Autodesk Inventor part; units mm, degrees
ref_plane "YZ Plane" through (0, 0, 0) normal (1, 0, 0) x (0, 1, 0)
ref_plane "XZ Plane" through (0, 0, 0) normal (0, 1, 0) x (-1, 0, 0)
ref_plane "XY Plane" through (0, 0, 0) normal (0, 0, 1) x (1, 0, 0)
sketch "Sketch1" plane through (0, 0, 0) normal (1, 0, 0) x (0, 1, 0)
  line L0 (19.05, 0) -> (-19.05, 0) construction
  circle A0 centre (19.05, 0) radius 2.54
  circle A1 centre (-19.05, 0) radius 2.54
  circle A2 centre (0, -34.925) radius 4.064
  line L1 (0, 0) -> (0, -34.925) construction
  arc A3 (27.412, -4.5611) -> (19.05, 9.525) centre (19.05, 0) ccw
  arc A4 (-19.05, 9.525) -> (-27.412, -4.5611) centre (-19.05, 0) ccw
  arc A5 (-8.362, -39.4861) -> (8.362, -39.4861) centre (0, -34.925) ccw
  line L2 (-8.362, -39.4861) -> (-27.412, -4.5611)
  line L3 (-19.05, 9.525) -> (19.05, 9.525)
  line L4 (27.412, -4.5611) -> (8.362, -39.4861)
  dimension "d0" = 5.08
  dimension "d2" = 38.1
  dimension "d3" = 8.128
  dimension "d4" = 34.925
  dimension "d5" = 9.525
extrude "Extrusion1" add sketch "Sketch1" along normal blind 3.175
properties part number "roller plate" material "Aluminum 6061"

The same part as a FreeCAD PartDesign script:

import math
import FreeCAD as App
import Part
import Sketcher

V = App.Vector
Q = App.Units.Quantity

doc = App.newDocument("Part")
params = doc.addObject("Spreadsheet::Sheet", "Params")
for row, (alias, value) in enumerate([
    ("sketch1_diameter", "0.2 in"),
    ("sketch1_diameter2", "0.32 in"),
    ("sketch1_width", "1.5 in"),
    ("sketch1_radius", "0.375 in"),
    ("pad1_length", "0.125 in"),
], start=1):
    params.set(f"A{row}", alias)
    params.set(f"B{row}", "=" + value)
    params.setAlias(f"B{row}", alias)

body = doc.addObject("PartDesign::Body", "Body")

sketch1 = body.newObject("Sketcher::SketchObject", "Sketch")
sketch1.AttachmentSupport = (doc.getObject("YZ_Plane"), [""])
sketch1.MapMode = "FlatFace"
sketch1.addGeometry([
    Part.LineSegment(V(8.4, -39.5, 0), V(27.4, -4.6, 0)),
    Part.ArcOfCircle(Part.Circle(V(19.1, 0, 0), V(0, 0, 1), 9.5), math.radians(-29), math.radians(90)),
    Part.LineSegment(V(19.1, 9.5, 0), V(-19.1, 9.5, 0)),
    Part.ArcOfCircle(Part.Circle(V(-19.1, 0, 0), V(0, 0, 1), 9.5), math.radians(90), math.radians(209)),
    Part.LineSegment(V(-27.4, -4.6, 0), V(-8.4, -39.5, 0)),
    Part.ArcOfCircle(Part.Circle(V(0, -34.9, 0), V(0, 0, 1), 9.5), math.radians(-151), math.radians(-29)),
    Part.Circle(V(0, -34.9, 0), V(0, 0, 1), 4.1),
    Part.Circle(V(-19.1, 0, 0), V(0, 0, 1), 2.5),
    Part.Circle(V(19.1, 0, 0), V(0, 0, 1), 2.5),
], False)
sketch1.addConstraint([
    Sketcher.Constraint("Tangent", 0, 2, 1, 1),
    Sketcher.Constraint("Tangent", 1, 2, 2, 1),
    Sketcher.Constraint("Tangent", 2, 2, 3, 1),
    Sketcher.Constraint("Tangent", 3, 2, 4, 1),
    Sketcher.Constraint("Tangent", 4, 2, 5, 1),
    Sketcher.Constraint("Tangent", 5, 2, 0, 1),
    Sketcher.Constraint("Horizontal", 2),
    Sketcher.Constraint("Coincident", 6, 3, 5, 3),
    Sketcher.Constraint("Coincident", 7, 3, 3, 3),
    Sketcher.Constraint("Coincident", 8, 3, 1, 3),
    Sketcher.Constraint("Equal", 1, 3),
    Sketcher.Constraint("Equal", 3, 5),
    Sketcher.Constraint("Equal", 7, 8),
    Sketcher.Constraint("Symmetric", 1, 3, 3, 3, -1, 1),
    Sketcher.Constraint("PointOnObject", 5, 3, -2),
    Sketcher.Constraint("Diameter", 7, Q("0.2 in")),
    Sketcher.Constraint("Diameter", 6, Q("0.32 in")),
    Sketcher.Constraint("DistanceX", 2, 2, 2, 1, Q("1.5 in")),
    Sketcher.Constraint("Radius", 1, Q("0.375 in")),
    Sketcher.Constraint("DistanceY", 5, 3, -1, 1, Q("1.375 in")),
])
sketch1.setExpression("Constraints[15]", "Params.sketch1_diameter")
sketch1.setExpression("Constraints[16]", "Params.sketch1_diameter2")
sketch1.setExpression("Constraints[17]", "Params.sketch1_width")
sketch1.setExpression("Constraints[18]", "Params.sketch1_radius")
pad1 = body.newObject("PartDesign::Pad", "Pad")
pad1.Profile = sketch1
pad1.setExpression("Length", "Params.pad1_length")

doc.recompute()
